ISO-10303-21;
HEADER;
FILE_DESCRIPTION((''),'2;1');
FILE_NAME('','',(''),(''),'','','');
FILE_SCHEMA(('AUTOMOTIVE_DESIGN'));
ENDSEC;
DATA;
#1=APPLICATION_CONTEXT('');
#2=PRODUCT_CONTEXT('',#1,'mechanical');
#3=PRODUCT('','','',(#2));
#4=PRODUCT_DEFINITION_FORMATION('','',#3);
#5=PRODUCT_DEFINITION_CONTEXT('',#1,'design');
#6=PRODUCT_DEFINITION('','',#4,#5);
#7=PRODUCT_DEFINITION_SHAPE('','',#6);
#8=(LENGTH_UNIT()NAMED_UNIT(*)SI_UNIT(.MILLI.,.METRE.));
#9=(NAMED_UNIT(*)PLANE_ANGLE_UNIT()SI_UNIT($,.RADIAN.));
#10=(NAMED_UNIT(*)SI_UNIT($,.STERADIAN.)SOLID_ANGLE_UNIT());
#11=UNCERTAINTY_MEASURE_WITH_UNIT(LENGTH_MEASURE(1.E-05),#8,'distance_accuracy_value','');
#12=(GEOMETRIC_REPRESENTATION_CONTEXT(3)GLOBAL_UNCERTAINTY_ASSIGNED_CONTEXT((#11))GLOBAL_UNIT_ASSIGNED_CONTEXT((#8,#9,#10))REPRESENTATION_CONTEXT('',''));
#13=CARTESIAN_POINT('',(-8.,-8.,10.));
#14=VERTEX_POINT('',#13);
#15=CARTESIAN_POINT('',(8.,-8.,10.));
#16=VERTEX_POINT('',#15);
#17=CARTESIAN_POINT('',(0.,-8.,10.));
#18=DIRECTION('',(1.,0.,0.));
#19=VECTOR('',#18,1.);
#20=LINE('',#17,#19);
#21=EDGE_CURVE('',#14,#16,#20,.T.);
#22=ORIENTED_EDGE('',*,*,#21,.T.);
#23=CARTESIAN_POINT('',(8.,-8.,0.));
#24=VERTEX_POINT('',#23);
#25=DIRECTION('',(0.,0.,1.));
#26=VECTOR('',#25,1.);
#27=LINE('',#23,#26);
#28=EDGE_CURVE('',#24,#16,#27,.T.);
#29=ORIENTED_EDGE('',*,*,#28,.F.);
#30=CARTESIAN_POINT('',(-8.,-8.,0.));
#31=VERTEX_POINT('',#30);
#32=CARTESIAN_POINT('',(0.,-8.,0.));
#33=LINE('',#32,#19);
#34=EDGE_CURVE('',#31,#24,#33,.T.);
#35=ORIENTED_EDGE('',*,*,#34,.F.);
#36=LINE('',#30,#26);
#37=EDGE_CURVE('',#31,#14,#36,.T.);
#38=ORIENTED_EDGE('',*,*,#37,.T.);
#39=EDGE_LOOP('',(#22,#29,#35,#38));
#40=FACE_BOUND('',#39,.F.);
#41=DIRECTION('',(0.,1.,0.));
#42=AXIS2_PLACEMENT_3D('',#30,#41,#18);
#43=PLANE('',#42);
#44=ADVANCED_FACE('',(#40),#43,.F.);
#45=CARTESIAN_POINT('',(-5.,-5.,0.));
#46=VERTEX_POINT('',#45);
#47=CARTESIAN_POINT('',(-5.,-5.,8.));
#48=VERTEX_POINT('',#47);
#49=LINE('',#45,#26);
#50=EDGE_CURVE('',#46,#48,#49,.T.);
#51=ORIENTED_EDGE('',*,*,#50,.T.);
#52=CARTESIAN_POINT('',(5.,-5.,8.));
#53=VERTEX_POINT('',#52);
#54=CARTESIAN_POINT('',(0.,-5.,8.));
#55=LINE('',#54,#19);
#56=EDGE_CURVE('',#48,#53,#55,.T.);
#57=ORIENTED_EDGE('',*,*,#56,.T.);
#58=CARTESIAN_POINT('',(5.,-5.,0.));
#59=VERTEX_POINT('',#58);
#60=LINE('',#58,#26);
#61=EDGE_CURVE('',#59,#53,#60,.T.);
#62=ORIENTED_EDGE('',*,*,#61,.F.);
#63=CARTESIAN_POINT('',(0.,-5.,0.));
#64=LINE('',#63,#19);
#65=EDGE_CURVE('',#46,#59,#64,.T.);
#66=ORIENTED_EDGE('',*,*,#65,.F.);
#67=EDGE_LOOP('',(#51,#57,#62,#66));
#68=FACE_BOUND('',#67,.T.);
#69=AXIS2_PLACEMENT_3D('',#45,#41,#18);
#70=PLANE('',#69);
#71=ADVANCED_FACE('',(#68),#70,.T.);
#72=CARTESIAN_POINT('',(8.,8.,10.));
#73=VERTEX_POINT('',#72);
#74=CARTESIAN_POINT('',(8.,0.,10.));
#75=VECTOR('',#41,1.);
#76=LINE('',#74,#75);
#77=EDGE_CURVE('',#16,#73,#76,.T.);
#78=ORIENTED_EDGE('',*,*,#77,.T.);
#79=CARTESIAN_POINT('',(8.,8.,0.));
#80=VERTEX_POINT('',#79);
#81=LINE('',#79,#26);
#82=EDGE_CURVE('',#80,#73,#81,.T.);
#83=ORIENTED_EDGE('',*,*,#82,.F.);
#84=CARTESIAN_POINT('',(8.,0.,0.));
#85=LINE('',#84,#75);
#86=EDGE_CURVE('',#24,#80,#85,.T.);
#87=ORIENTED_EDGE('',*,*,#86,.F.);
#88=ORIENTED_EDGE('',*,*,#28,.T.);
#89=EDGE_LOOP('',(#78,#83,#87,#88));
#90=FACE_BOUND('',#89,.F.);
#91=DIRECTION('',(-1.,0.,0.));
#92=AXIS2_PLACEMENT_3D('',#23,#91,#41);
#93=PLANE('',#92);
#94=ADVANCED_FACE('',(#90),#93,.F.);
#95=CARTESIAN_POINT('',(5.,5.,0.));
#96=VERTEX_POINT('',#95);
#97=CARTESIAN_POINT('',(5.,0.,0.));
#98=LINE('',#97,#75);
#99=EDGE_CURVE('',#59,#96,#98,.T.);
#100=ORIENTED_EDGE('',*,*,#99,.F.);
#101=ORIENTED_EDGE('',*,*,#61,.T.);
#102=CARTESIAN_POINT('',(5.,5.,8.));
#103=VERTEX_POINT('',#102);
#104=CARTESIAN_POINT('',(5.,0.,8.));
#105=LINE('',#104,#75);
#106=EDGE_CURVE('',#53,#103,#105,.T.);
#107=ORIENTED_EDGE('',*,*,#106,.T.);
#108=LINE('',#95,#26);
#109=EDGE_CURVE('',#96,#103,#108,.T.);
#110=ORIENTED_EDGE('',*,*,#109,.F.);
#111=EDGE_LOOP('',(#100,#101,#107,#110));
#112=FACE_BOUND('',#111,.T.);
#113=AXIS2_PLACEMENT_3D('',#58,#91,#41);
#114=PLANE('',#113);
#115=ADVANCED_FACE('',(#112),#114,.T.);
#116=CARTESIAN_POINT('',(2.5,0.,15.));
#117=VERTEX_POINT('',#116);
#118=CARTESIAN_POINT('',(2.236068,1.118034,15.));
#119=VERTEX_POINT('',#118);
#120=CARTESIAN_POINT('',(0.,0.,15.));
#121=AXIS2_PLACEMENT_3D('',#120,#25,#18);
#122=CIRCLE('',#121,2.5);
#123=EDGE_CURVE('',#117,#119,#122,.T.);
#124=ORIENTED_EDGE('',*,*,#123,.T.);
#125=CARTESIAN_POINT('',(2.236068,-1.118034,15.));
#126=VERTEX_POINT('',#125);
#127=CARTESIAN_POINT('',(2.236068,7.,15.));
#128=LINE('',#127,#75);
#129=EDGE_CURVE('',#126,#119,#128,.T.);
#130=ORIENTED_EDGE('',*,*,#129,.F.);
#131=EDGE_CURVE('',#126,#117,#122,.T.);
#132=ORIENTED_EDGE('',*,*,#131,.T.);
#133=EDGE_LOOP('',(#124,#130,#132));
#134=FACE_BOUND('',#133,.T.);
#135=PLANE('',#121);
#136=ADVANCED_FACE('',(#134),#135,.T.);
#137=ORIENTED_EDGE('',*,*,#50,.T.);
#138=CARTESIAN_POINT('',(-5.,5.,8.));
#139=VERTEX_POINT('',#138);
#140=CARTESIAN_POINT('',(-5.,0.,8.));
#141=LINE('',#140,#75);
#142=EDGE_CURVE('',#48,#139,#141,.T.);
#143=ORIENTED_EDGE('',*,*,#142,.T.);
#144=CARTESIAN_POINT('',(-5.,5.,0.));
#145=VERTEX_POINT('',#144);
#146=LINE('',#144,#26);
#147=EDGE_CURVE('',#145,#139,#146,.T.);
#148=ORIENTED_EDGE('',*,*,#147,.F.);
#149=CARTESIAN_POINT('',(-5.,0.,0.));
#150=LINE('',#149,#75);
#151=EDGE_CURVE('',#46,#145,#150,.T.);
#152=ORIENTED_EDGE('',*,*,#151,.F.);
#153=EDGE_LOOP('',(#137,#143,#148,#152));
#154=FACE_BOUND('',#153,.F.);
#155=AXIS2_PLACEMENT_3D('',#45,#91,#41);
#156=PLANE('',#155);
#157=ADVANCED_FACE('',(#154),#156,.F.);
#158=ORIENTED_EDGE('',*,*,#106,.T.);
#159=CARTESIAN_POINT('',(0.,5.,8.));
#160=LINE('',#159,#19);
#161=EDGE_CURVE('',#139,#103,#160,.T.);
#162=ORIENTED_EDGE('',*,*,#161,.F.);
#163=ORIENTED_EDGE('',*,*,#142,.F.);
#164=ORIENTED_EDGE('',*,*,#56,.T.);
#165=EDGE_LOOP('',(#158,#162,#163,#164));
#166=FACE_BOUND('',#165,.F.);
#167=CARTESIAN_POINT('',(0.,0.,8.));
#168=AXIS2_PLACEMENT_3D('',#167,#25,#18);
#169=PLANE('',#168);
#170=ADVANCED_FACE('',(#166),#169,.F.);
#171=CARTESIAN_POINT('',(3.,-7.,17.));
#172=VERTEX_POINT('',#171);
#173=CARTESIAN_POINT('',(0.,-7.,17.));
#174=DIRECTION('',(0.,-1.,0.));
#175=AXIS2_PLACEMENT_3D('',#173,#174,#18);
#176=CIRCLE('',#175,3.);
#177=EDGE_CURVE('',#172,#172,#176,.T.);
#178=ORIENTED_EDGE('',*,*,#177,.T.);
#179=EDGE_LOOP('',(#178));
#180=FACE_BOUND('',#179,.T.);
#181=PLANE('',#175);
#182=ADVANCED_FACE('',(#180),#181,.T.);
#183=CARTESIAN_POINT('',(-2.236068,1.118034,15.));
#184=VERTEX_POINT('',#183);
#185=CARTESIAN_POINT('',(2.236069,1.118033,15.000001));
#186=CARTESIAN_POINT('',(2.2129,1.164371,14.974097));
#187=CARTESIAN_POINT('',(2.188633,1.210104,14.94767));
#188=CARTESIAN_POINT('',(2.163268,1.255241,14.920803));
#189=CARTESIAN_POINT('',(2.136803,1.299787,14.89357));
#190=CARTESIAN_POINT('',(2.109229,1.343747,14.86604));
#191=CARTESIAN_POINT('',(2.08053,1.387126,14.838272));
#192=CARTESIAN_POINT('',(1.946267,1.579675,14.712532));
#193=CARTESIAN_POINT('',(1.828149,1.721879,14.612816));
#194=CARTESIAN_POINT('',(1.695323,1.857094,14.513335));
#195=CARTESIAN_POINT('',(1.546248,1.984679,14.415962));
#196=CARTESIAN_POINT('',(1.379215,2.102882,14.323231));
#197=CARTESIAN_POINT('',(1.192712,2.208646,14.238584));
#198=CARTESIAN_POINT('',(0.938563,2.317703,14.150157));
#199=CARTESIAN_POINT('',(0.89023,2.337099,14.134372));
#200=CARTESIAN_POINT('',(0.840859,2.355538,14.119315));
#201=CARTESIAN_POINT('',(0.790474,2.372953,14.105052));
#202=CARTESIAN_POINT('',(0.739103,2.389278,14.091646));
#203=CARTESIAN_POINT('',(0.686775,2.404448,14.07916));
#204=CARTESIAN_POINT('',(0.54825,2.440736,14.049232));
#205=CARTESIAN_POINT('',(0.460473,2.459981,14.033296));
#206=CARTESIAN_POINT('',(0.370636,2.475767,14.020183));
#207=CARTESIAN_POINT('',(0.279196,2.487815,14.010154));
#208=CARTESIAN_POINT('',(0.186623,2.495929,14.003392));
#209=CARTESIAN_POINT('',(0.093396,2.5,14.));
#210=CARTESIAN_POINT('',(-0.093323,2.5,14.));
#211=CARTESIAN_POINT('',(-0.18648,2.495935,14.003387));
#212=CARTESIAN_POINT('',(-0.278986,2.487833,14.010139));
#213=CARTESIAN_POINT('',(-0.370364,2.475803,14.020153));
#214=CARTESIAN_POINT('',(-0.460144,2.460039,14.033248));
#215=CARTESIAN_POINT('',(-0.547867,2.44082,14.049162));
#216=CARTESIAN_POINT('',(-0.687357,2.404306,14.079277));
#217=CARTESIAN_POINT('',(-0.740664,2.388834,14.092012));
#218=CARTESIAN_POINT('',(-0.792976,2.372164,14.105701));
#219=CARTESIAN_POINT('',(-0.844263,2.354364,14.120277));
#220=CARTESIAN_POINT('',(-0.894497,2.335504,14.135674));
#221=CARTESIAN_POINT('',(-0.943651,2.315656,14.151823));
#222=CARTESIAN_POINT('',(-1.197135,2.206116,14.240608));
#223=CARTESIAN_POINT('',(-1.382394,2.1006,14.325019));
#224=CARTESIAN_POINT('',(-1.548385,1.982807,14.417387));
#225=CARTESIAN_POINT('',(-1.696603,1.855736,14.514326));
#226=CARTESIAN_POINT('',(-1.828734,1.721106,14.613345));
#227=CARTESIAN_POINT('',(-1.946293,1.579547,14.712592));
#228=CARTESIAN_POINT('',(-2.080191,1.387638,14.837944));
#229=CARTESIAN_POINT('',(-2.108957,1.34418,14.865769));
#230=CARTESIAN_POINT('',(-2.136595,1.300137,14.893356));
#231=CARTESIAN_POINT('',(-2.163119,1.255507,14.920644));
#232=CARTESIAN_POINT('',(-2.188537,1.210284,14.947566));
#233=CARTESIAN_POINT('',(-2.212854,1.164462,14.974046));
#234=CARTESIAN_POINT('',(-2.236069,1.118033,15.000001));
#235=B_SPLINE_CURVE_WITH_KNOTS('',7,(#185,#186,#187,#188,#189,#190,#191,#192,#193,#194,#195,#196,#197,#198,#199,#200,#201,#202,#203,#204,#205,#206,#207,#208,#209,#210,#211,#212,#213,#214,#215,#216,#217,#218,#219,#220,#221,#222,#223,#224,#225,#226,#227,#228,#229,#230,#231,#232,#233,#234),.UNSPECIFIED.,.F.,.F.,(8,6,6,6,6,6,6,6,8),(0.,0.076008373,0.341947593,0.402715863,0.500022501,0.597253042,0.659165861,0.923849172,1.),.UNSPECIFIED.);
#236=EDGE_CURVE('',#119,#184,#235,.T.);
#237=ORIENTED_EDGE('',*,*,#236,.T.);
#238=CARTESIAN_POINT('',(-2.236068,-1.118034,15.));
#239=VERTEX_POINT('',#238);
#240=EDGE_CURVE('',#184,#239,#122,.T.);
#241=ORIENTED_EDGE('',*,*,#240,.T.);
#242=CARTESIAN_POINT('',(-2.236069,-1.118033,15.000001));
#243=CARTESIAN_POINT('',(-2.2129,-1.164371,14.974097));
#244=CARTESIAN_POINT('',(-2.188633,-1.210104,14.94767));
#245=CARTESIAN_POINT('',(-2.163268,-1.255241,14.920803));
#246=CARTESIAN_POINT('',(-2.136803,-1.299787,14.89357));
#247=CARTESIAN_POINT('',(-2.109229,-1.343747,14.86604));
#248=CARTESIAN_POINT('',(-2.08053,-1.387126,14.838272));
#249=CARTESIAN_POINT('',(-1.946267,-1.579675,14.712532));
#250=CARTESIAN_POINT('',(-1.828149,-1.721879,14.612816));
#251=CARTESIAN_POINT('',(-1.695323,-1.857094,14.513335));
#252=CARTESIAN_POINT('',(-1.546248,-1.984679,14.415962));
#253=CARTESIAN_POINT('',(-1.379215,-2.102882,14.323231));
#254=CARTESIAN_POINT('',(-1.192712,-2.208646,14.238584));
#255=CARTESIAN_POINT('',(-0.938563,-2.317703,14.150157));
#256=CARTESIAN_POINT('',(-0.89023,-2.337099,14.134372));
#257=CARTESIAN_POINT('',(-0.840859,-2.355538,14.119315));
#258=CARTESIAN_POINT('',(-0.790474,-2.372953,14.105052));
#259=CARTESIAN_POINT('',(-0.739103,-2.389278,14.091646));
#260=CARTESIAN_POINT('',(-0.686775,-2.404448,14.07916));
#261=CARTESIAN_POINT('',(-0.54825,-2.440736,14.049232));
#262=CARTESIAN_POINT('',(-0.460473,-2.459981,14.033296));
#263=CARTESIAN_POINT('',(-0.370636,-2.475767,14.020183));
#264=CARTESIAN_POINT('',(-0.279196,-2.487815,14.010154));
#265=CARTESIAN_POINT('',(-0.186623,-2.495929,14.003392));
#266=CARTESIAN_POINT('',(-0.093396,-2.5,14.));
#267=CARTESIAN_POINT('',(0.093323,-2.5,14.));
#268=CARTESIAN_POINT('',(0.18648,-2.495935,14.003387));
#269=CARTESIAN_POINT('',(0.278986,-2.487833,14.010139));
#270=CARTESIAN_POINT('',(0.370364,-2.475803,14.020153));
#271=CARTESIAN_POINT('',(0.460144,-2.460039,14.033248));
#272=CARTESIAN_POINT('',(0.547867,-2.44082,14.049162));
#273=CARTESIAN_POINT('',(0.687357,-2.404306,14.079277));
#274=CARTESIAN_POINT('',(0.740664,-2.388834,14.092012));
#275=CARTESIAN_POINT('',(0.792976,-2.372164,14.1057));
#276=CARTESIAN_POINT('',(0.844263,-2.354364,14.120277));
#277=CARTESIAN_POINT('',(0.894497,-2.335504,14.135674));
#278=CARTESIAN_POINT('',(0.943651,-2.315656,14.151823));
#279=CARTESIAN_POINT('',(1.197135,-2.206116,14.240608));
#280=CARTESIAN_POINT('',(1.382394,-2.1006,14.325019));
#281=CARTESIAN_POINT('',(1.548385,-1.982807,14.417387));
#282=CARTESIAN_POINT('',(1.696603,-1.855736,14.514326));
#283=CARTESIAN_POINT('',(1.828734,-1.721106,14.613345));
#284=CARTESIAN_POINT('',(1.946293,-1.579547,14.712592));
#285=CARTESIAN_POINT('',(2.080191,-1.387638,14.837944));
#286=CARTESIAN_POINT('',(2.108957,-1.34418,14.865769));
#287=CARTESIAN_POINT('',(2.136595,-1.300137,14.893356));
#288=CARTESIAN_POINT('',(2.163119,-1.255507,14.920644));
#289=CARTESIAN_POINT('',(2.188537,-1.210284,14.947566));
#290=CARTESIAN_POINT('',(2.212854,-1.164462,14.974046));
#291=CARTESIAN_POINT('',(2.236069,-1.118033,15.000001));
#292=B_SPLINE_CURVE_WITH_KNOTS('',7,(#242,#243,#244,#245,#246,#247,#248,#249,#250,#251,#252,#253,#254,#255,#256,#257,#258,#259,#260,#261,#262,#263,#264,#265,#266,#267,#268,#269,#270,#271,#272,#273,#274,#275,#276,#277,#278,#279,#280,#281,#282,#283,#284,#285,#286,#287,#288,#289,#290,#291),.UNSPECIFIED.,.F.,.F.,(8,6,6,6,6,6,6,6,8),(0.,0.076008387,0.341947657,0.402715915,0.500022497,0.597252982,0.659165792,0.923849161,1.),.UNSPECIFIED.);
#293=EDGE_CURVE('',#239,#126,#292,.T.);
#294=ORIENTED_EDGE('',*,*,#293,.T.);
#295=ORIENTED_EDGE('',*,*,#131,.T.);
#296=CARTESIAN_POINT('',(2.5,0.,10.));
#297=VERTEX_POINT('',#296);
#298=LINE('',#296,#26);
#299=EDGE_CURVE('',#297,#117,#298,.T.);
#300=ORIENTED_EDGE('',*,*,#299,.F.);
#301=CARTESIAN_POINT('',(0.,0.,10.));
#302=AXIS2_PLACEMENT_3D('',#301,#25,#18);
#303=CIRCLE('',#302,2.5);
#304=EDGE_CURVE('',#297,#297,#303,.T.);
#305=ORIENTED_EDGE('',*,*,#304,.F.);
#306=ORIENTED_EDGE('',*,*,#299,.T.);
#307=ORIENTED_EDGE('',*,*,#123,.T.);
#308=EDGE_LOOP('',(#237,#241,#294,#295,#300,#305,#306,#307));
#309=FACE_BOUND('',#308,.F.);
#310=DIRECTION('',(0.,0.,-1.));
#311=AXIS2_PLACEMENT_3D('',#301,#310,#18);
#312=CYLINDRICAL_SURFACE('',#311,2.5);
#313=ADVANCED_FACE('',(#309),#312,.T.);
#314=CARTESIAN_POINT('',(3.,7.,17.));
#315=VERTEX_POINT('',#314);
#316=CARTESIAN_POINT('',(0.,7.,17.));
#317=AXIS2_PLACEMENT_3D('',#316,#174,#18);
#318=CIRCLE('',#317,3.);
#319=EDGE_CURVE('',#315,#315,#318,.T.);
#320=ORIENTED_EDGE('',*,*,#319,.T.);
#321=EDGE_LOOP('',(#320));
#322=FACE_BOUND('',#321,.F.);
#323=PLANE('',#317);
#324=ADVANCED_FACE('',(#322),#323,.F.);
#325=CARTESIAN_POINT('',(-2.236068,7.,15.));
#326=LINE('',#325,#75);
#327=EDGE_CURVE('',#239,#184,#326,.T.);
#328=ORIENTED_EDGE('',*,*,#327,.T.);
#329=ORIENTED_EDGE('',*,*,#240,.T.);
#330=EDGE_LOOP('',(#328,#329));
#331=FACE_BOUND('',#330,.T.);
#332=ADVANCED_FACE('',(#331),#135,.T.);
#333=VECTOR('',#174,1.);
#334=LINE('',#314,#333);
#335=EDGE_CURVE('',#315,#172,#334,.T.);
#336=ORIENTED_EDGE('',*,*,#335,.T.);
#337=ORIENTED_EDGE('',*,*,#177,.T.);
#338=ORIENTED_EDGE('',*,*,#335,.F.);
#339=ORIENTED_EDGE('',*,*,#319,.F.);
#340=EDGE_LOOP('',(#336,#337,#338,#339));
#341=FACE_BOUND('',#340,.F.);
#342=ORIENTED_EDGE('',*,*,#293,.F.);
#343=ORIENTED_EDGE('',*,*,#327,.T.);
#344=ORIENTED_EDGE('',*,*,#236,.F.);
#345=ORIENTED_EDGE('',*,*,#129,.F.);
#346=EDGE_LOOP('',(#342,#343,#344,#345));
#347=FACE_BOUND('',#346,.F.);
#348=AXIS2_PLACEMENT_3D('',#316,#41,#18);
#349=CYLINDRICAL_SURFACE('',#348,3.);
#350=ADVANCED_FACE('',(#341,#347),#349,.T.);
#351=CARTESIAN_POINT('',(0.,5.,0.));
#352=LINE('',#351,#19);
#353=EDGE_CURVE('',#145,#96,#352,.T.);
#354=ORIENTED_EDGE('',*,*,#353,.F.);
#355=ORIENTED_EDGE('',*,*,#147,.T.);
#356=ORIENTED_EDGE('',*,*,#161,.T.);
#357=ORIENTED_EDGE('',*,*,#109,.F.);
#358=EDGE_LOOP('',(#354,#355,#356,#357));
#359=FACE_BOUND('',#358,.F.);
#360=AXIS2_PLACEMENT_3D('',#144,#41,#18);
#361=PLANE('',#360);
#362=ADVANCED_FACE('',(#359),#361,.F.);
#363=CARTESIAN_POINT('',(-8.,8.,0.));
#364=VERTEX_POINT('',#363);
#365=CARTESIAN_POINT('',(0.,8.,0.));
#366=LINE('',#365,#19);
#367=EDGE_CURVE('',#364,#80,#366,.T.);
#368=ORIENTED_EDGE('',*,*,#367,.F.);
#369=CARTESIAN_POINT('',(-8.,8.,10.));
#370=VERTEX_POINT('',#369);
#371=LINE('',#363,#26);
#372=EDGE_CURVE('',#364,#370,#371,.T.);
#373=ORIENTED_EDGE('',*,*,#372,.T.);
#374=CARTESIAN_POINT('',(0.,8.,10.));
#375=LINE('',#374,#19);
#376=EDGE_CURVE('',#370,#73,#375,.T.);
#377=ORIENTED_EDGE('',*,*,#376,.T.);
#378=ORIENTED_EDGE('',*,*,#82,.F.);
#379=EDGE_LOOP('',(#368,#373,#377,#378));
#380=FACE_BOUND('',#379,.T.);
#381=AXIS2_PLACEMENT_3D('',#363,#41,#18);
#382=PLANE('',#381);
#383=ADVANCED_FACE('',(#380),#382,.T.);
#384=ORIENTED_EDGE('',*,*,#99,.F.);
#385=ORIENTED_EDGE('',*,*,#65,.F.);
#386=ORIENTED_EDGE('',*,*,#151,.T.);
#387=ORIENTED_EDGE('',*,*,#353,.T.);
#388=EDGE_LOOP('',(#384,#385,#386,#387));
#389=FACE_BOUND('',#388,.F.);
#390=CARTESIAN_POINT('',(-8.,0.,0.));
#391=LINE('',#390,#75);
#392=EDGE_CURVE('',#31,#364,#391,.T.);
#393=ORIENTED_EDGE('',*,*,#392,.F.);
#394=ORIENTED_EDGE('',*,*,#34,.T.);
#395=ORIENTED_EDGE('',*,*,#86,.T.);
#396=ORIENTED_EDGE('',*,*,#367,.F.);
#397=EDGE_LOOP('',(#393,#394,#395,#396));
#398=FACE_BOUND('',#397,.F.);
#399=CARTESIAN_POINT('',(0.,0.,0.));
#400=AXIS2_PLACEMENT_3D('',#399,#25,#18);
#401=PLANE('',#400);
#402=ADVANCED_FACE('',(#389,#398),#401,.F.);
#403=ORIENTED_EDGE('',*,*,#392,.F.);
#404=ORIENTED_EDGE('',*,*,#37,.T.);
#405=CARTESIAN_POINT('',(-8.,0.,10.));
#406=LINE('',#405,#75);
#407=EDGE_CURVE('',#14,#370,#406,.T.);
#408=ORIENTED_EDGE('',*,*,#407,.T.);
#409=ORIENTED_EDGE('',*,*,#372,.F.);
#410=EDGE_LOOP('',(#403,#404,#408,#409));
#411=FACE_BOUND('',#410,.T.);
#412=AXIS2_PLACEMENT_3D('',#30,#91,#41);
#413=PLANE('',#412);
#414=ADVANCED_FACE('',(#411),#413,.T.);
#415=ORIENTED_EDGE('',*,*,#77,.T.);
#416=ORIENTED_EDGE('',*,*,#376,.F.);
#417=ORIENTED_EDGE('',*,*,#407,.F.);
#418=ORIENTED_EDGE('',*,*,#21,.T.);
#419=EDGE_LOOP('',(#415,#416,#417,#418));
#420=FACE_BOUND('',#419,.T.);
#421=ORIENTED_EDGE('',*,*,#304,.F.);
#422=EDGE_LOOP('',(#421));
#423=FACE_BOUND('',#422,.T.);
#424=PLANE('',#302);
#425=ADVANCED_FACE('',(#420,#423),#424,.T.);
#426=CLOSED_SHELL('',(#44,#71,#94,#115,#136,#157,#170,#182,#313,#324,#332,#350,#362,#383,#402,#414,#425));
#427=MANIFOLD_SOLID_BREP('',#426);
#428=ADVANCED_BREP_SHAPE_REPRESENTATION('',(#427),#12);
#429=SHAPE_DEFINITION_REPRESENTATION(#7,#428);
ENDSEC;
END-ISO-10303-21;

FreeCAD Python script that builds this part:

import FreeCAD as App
import Part
import Sketcher
from FreeCAD import Vector

doc = App.newDocument("Part")
body = doc.addObject("PartDesign::Body", "Body")

# Sketch on XY plane
sketch1 = body.newObject("Sketcher::SketchObject", "Sketch")
sketch1.AttachmentSupport = (doc.getObject("XY_Plane"), [""])
sketch1.MapMode = "FlatFace"
sketch1.addGeometry([
    Part.LineSegment(Vector(-5, 5, 0), Vector(-5, -5, 0)),
    Part.LineSegment(Vector(-5, -5, 0), Vector(5, -5, 0)),
    Part.LineSegment(Vector(5, -5, 0), Vector(5, 5, 0)),
    Part.LineSegment(Vector(5, 5, 0), Vector(-5, 5, 0)),
], False)
sketch1.addConstraint([
    Sketcher.Constraint("Coincident", 0, 2, 1, 1),
    Sketcher.Constraint("Coincident", 1, 2, 2, 1),
    Sketcher.Constraint("Coincident", 2, 2, 3, 1),
    Sketcher.Constraint("Coincident", 3, 2, 0, 1),
    Sketcher.Constraint("Vertical", 0),
    Sketcher.Constraint("Horizontal", 1),
    Sketcher.Constraint("Vertical", 2),
    Sketcher.Constraint("Horizontal", 3),
    Sketcher.Constraint("Symmetric", 0, 2, 2, 2, -1, 1),
    Sketcher.Constraint("Equal", 3, 0),
    Sketcher.Constraint("DistanceX", 1, 1, 1, 2, 10.0),
])
pad1 = body.newObject("PartDesign::Pad", "Pad")
pad1.Profile = sketch1
pad1.Length = 8
body2 = doc.addObject("PartDesign::Body", "Body001")

# Sketch on XY plane
sketch2 = body2.newObject("Sketcher::SketchObject", "Sketch001")
sketch2.AttachmentSupport = (doc.getObject("XY_Plane001"), [""])
sketch2.MapMode = "FlatFace"
sketch2.AttachmentOffset = App.Placement(Vector(0, 0, 10), App.Rotation())
sketch2.addGeometry(Part.Circle(Vector(0, 0, 0), Vector(0, 0, 1), 2.5), False)
sketch2.addConstraint([
    Sketcher.Constraint("Coincident", 0, 3, -1, 1),
    Sketcher.Constraint("Diameter", 0, 5.0),
])
pad2 = body2.newObject("PartDesign::Pad", "Pad001")
pad2.Profile = sketch2
pad2.Length = 5
body3 = doc.addObject("PartDesign::Body", "Body002")

# Sketch on XZ plane
sketch3 = body3.newObject("Sketcher::SketchObject", "Sketch002")
sketch3.AttachmentSupport = (doc.getObject("XZ_Plane002"), [""])
sketch3.MapMode = "FlatFace"
sketch3.addGeometry(Part.Circle(Vector(0, 17, 0), Vector(0, 0, 1), 3), False)
sketch3.addConstraint([
    Sketcher.Constraint("PointOnObject", 0, 3, -2),
    Sketcher.Constraint("Diameter", 0, 6.0),
    Sketcher.Constraint("DistanceY", -1, 1, 0, 3, 17.0),
])
pad3 = body3.newObject("PartDesign::Pad", "Pad002")
pad3.Profile = sketch3
pad3.Length = 14
body4 = doc.addObject("PartDesign::Body", "Body003")
doc.recompute()

body3.Placement = App.Placement(Vector(0, 7, 0), App.Rotation(Vector(0, 0, 1), 0))
boolean = body4.newObject("PartDesign::Boolean", "Boolean")
boolean.Type = "Fuse"
boolean.addObjects([body3])
body5 = doc.addObject("PartDesign::Body", "Body004")

# Sketch on XY plane
sketch4 = body5.newObject("Sketcher::SketchObject", "Sketch003")
sketch4.AttachmentSupport = (doc.getObject("XY_Plane004"), [""])
sketch4.MapMode = "FlatFace"
sketch4.addGeometry([
    Part.LineSegment(Vector(-8, 8, 0), Vector(-8, -8, 0)),
    Part.LineSegment(Vector(-8, -8, 0), Vector(8, -8, 0)),
    Part.LineSegment(Vector(8, -8, 0), Vector(8, 8, 0)),
    Part.LineSegment(Vector(8, 8, 0), Vector(-8, 8, 0)),
], False)
sketch4.addConstraint([
    Sketcher.Constraint("Coincident", 0, 2, 1, 1),
    Sketcher.Constraint("Coincident", 1, 2, 2, 1),
    Sketcher.Constraint("Coincident", 2, 2, 3, 1),
    Sketcher.Constraint("Coincident", 3, 2, 0, 1),
    Sketcher.Constraint("Vertical", 0),
    Sketcher.Constraint("Horizontal", 1),
    Sketcher.Constraint("Vertical", 2),
    Sketcher.Constraint("Horizontal", 3),
    Sketcher.Constraint("Symmetric", 0, 2, 2, 2, -1, 1),
    Sketcher.Constraint("Equal", 3, 0),
    Sketcher.Constraint("DistanceX", 1, 1, 1, 2, 16.0),
])
pad4 = body5.newObject("PartDesign::Pad", "Pad003")
pad4.Profile = sketch4
pad4.Length = 10
doc.recompute()

boolean2 = body5.newObject("PartDesign::Boolean", "Boolean001")
boolean2.Type = "Fuse"
boolean2.addObjects([body2])
doc.recompute()

boolean3 = body5.newObject("PartDesign::Boolean", "Boolean002")
boolean3.Type = "Fuse"
boolean3.addObjects([body4])
doc.recompute()

boolean4 = body5.newObject("PartDesign::Boolean", "Boolean003")
boolean4.Type = "Cut"
boolean4.addObjects([body])

doc.recompute()
